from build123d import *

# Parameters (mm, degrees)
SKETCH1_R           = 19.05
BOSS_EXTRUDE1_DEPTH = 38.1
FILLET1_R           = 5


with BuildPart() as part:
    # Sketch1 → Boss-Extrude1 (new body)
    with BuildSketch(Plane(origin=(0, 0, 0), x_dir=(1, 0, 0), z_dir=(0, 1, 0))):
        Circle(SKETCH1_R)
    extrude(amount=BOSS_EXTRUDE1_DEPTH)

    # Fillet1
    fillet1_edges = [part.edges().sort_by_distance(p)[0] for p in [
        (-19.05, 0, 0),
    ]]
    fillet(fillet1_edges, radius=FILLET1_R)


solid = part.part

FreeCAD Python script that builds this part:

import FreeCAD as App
import Part
import Sketcher
Q = App.Units.Quantity


def edges_at(feature, points):
    """Names of the edges that pass closest to the given points."""
    edges = feature.Shape.Edges
    near = lambda p: min(range(len(edges)), key=lambda i: edges[i].distToShape(Part.Vertex(*p))[0])
    return sorted({f"Edge{near(p) + 1}" for p in points})

doc = App.newDocument("Part")
body = doc.addObject("PartDesign::Body", "Body")

# Sketch on XZ plane
sketch1 = body.newObject("Sketcher::SketchObject", "Sketch")
sketch1.AttachmentSupport = (doc.getObject("XZ_Plane"), [""])
sketch1.MapMode = "FlatFace"
sketch1.addGeometry(Part.Circle(App.Vector(0, 0, 0), App.Vector(0, 0, 1), 19.05), False)
sketch1.addConstraint(Sketcher.Constraint("Coincident", 0, 3, -1, 1))
sketch1.addConstraint(Sketcher.Constraint("Diameter", 0, Q("38.1 mm")))
pad1 = body.newObject("PartDesign::Pad", "Pad")
pad1.Profile = sketch1
pad1.Length = 38.1
pad1.Reversed = True
doc.recompute()

fillet = body.newObject("PartDesign::Fillet", "Fillet")
fillet.Base = (pad1, edges_at(pad1, [(-19.05, 0, 0)]))
fillet.Radius = 5

doc.recompute()
